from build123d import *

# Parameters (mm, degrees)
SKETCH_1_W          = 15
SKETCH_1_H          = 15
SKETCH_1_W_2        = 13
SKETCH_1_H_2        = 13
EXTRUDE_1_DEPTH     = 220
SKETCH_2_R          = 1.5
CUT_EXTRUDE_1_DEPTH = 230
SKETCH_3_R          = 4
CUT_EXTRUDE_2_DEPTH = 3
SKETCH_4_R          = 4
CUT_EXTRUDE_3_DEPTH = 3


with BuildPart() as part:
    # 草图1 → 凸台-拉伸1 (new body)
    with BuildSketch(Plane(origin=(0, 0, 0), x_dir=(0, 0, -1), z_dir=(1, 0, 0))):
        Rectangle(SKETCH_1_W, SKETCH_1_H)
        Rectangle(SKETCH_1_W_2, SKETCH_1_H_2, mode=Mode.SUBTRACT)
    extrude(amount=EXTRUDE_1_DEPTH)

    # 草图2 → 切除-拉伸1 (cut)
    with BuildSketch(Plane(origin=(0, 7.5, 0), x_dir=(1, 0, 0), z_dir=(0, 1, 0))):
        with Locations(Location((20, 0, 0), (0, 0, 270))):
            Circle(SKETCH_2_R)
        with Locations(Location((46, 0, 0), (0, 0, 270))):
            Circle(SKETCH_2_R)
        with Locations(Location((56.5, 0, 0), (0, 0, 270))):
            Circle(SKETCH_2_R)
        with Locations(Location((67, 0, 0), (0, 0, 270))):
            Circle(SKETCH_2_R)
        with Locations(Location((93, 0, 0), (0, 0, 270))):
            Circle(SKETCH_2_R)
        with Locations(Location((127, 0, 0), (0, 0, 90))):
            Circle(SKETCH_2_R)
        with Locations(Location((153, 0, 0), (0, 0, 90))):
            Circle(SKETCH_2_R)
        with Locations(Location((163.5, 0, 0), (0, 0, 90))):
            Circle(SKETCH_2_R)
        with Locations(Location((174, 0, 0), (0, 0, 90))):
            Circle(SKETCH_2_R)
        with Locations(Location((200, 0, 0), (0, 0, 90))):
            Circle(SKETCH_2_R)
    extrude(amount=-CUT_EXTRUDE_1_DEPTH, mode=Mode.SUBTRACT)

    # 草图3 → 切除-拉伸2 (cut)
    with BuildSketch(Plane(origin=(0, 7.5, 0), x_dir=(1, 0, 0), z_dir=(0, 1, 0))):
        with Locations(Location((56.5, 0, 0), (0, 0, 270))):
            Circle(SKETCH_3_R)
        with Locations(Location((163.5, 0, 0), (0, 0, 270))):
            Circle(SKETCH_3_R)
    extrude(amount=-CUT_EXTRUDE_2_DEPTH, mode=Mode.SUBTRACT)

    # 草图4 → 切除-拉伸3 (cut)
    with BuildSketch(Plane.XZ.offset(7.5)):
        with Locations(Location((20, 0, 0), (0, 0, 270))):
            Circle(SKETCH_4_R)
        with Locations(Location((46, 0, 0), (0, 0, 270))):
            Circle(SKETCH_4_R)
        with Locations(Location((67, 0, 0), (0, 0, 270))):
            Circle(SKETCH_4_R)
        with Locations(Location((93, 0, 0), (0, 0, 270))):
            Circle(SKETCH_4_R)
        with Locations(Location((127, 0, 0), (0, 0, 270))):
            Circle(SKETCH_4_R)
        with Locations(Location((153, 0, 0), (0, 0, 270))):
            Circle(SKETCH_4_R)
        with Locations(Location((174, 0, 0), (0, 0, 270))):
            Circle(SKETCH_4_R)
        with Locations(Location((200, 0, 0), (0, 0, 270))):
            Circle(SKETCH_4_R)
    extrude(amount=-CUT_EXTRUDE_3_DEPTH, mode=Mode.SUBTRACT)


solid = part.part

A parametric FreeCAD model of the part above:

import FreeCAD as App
import Part
import Sketcher

V = App.Vector


def add_polygon(sketch, points):
    """Adds a closed chain of lines whose ends are joined by coincident constraints."""
    first, n = sketch.GeometryCount, len(points)
    for a, b in zip(points, points[1:] + points[:1]):
        sketch.addGeometry(Part.LineSegment(App.Vector(*a, 0), App.Vector(*b, 0)), False)
    for i in range(n):
        sketch.addConstraint(Sketcher.Constraint("Coincident", first + i, 2, first + (i + 1) % n, 1))

doc = App.newDocument("Part")
params = doc.addObject("Spreadsheet::Sheet", "Params")
for row, (alias, value) in enumerate([
    ("sketch1_width", "15 mm"),
    ("sketch1_width2", "13 mm"),
    ("pad1_length", "220 mm"),
    ("sketch2_diameter", "3 mm"),
    ("pocket1_length", "230 mm"),
    ("sketch3_diameter", "8 mm"),
    ("pocket2_length", "3 mm"),
    ("sketch4_diameter", "8 mm"),
    ("pocket3_length", "3 mm"),
], start=1):
    params.set(f"A{row}", alias)
    params.set(f"B{row}", "=" + value)
    params.setAlias(f"B{row}", alias)

body = doc.addObject("PartDesign::Body", "Body")

# Sketch on YZ plane
sketch1 = doc.addObject("Sketcher::SketchObject", "Sketch")
body.addObject(sketch1)
sketch1.AttachmentSupport = (doc.YZ_Plane, [""])
sketch1.MapMode = "FlatFace"
add_polygon(sketch1, [(8, 8), (-8, 8), (-8, -8), (8, -8)])  # lines 0-3
add_polygon(sketch1, [(-6, -6), (-6, 6), (6, 6), (6, -6)])  # lines 4-7
sketch1.addConstraint(Sketcher.Constraint("Horizontal", 0))
sketch1.addConstraint(Sketcher.Constraint("Vertical", 1))
sketch1.addConstraint(Sketcher.Constraint("Horizontal", 2))
sketch1.addConstraint(Sketcher.Constraint("Vertical", 3))
sketch1.addConstraint(Sketcher.Constraint("Vertical", 4))
sketch1.addConstraint(Sketcher.Constraint("Horizontal", 5))
sketch1.addConstraint(Sketcher.Constraint("Vertical", 6))
sketch1.addConstraint(Sketcher.Constraint("Horizontal", 7))
sketch1.addConstraint(Sketcher.Constraint("Symmetric", 0, 2, 2, 2, -1, 1))
sketch1.addConstraint(Sketcher.Constraint("Symmetric", 4, 2, 6, 2, -1, 1))
sketch1.addConstraint(Sketcher.Constraint("Equal", 2, 1))
sketch1.addConstraint(Sketcher.Constraint("Equal", 7, 4))
sketch1.addConstraint(Sketcher.Constraint("DistanceX", 0, 2, 0, 1, 15.0))
sketch1.addConstraint(Sketcher.Constraint("DistanceX", 5, 1, 5, 2, 13.0))
sketch1.setExpression("Constraints[20]", "Params.sketch1_width")
sketch1.setExpression("Constraints[21]", "Params.sketch1_width2")
pad1 = doc.addObject("PartDesign::Pad", "Pad")
body.addObject(pad1)
pad1.Profile = sketch1
pad1.setExpression("Length", "Params.pad1_length")

# Sketch on XZ plane
sketch2 = doc.addObject("Sketcher::SketchObject", "Sketch001")
body.addObject(sketch2)
sketch2.AttachmentSupport = (doc.XZ_Plane, [""])
sketch2.MapMode = "FlatFace"
sketch2.AttachmentOffset = App.Placement(V(0, 0, -7.5), App.Rotation())
sketch2.addGeometry(Part.Circle(V(20, 0, 0), V(0, 0, 1), 1.5), False)
sketch2.addGeometry(Part.Circle(V(46, 0, 0), V(0, 0, 1), 1.5), False)
sketch2.addGeometry(Part.Circle(V(56.5, 0, 0), V(0, 0, 1), 1.5), False)
sketch2.addGeometry(Part.Circle(V(67, 0, 0), V(0, 0, 1), 1.5), False)
sketch2.addGeometry(Part.Circle(V(93, 0, 0), V(0, 0, 1), 1.5), False)
sketch2.addGeometry(Part.Circle(V(127, 0, 0), V(0, 0, 1), 1.5), False)
sketch2.addGeometry(Part.Circle(V(153, 0, 0), V(0, 0, 1), 1.5), False)
sketch2.addGeometry(Part.Circle(V(163.5, 0, 0), V(0, 0, 1), 1.5), False)
sketch2.addGeometry(Part.Circle(V(174, 0, 0), V(0, 0, 1), 1.5), False)
sketch2.addGeometry(Part.Circle(V(200, 0, 0), V(0, 0, 1), 1.5), False)
sketch2.addConstraint(Sketcher.Constraint("Equal", 0, 1))
sketch2.addConstraint(Sketcher.Constraint("Equal", 1, 2))
sketch2.addConstraint(Sketcher.Constraint("Equal", 2, 3))
sketch2.addConstraint(Sketcher.Constraint("Equal", 3, 4))
sketch2.addConstraint(Sketcher.Constraint("Equal", 4, 5))
sketch2.addConstraint(Sketcher.Constraint("Equal", 5, 6))
sketch2.addConstraint(Sketcher.Constraint("Equal", 6, 7))
sketch2.addConstraint(Sketcher.Constraint("Equal", 7, 8))
sketch2.addConstraint(Sketcher.Constraint("Equal", 8, 9))
sketch2.addConstraint(Sketcher.Constraint("PointOnObject", 0, 3, -1))
sketch2.addConstraint(Sketcher.Constraint("PointOnObject", 1, 3, -1))
sketch2.addConstraint(Sketcher.Constraint("PointOnObject", 2, 3, -1))
sketch2.addConstraint(Sketcher.Constraint("PointOnObject", 3, 3, -1))
sketch2.addConstraint(Sketcher.Constraint("PointOnObject", 4, 3, -1))
sketch2.addConstraint(Sketcher.Constraint("PointOnObject", 5, 3, -1))
sketch2.addConstraint(Sketcher.Constraint("PointOnObject", 6, 3, -1))
sketch2.addConstraint(Sketcher.Constraint("PointOnObject", 7, 3, -1))
sketch2.addConstraint(Sketcher.Constraint("PointOnObject", 8, 3, -1))
sketch2.addConstraint(Sketcher.Constraint("PointOnObject", 9, 3, -1))
sketch2.addConstraint(Sketcher.Constraint("Diameter", 0, 3.0))
sketch2.addConstraint(Sketcher.Constraint("DistanceX", -1, 1, 0, 3, 20.0))
sketch2.addConstraint(Sketcher.Constraint("DistanceX", -1, 1, 1, 3, 46.0))
sketch2.addConstraint(Sketcher.Constraint("DistanceX", -1, 1, 3, 3, 67.0))
sketch2.addConstraint(Sketcher.Constraint("DistanceX", -1, 1, 4, 3, 93.0))
sketch2.addConstraint(Sketcher.Constraint("DistanceX", -1, 1, 5, 3, 127.0))
sketch2.addConstraint(Sketcher.Constraint("DistanceX", -1, 1, 6, 3, 153.0))
sketch2.addConstraint(Sketcher.Constraint("DistanceX", -1, 1, 8, 3, 174.0))
sketch2.addConstraint(Sketcher.Constraint("DistanceX", -1, 1, 9, 3, 200.0))
sketch2.addConstraint(Sketcher.Constraint("DistanceX", 2, 3, 7, 3, 107.0))
sketch2.addConstraint(Sketcher.Constraint("DistanceX", -1, 1, 2, 3, 56.5))
sketch2.setExpression("Constraints[19]", "Params.sketch2_diameter")
pocket1 = doc.addObject("PartDesign::Pocket", "Pocket")
body.addObject(pocket1)
pocket1.Profile = sketch2
pocket1.setExpression("Length", "Params.pocket1_length")
pocket1.Reversed = True

# Sketch on XZ plane
sketch3 = doc.addObject("Sketcher::SketchObject", "Sketch002")
body.addObject(sketch3)
sketch3.AttachmentSupport = (doc.XZ_Plane, [""])
sketch3.MapMode = "FlatFace"
sketch3.AttachmentOffset = App.Placement(V(0, 0, -7.5), App.Rotation())
sketch3.addGeometry(Part.Circle(V(56.5, 0, 0), V(0, 0, 1), 4), False)
sketch3.addGeometry(Part.Circle(V(163.5, 0, 0), V(0, 0, 1), 4), False)
sketch3.addConstraint(Sketcher.Constraint("Equal", 0, 1))
sketch3.addConstraint(Sketcher.Constraint("PointOnObject", 0, 3, -1))
sketch3.addConstraint(Sketcher.Constraint("PointOnObject", 1, 3, -1))
sketch3.addConstraint(Sketcher.Constraint("Diameter", 0, 8.0))
sketch3.addConstraint(Sketcher.Constraint("DistanceX", 0, 3, 1, 3, 107.0))
sketch3.addConstraint(Sketcher.Constraint("DistanceX", -1, 1, 0, 3, 56.5))
sketch3.setExpression("Constraints[3]", "Params.sketch3_diameter")
pocket2 = doc.addObject("PartDesign::Pocket", "Pocket001")
body.addObject(pocket2)
pocket2.Profile = sketch3
pocket2.setExpression("Length", "Params.pocket2_length")
pocket2.Reversed = True

# Sketch on XZ plane
sketch4 = doc.addObject("Sketcher::SketchObject", "Sketch003")
body.addObject(sketch4)
sketch4.AttachmentSupport = (doc.XZ_Plane, [""])
sketch4.MapMode = "FlatFace"
sketch4.AttachmentOffset = App.Placement(V(0, 0, 7.5), App.Rotation())
sketch4.addGeometry(Part.Circle(V(20, 0, 0), V(0, 0, 1), 4), False)
sketch4.addGeometry(Part.Circle(V(46, 0, 0), V(0, 0, 1), 4), False)
sketch4.addGeometry(Part.Circle(V(67, 0, 0), V(0, 0, 1), 4), False)
sketch4.addGeometry(Part.Circle(V(93, 0, 0), V(0, 0, 1), 4), False)
sketch4.addGeometry(Part.Circle(V(127, 0, 0), V(0, 0, 1), 4), False)
sketch4.addGeometry(Part.Circle(V(153, 0, 0), V(0, 0, 1), 4), False)
sketch4.addGeometry(Part.Circle(V(174, 0, 0), V(0, 0, 1), 4), False)
sketch4.addGeometry(Part.Circle(V(200, 0, 0), V(0, 0, 1), 4), False)
sketch4.addConstraint(Sketcher.Constraint("Equal", 0, 1))
sketch4.addConstraint(Sketcher.Constraint("Equal", 1, 2))
sketch4.addConstraint(Sketcher.Constraint("Equal", 2, 3))
sketch4.addConstraint(Sketcher.Constraint("Equal", 3, 4))
sketch4.addConstraint(Sketcher.Constraint("Equal", 4, 5))
sketch4.addConstraint(Sketcher.Constraint("Equal", 5, 6))
sketch4.addConstraint(Sketcher.Constraint("Equal", 6, 7))
sketch4.addConstraint(Sketcher.Constraint("PointOnObject", 0, 3, -1))
sketch4.addConstraint(Sketcher.Constraint("PointOnObject", 1, 3, -1))
sketch4.addConstraint(Sketcher.Constraint("PointOnObject", 2, 3, -1))
sketch4.addConstraint(Sketcher.Constraint("PointOnObject", 3, 3, -1))
sketch4.addConstraint(Sketcher.Constraint("PointOnObject", 4, 3, -1))
sketch4.addConstraint(Sketcher.Constraint("PointOnObject", 5, 3, -1))
sketch4.addConstraint(Sketcher.Constraint("PointOnObject", 6, 3, -1))
sketch4.addConstraint(Sketcher.Constraint("PointOnObject", 7, 3, -1))
sketch4.addConstraint(Sketcher.Constraint("Diameter", 0, 8.0))
sketch4.addConstraint(Sketcher.Constraint("DistanceX", -1, 1, 0, 3, 20.0))
sketch4.addConstraint(Sketcher.Constraint("DistanceX", -1, 1, 1, 3, 46.0))
sketch4.addConstraint(Sketcher.Constraint("DistanceX", -1, 1, 2, 3, 67.0))
sketch4.addConstraint(Sketcher.Constraint("DistanceX", -1, 1, 3, 3, 93.0))
sketch4.addConstraint(Sketcher.Constraint("DistanceX", -1, 1, 4, 3, 127.0))
sketch4.addConstraint(Sketcher.Constraint("DistanceX", -1, 1, 5, 3, 153.0))
sketch4.addConstraint(Sketcher.Constraint("DistanceX", -1, 1, 6, 3, 174.0))
sketch4.addConstraint(Sketcher.Constraint("DistanceX", -1, 1, 7, 3, 200.0))
sketch4.setExpression("Constraints[15]", "Params.sketch4_diameter")
pocket3 = doc.addObject("PartDesign::Pocket", "Pocket002")
body.addObject(pocket3)
pocket3.Profile = sketch4
pocket3.setExpression("Length", "Params.pocket3_length")

doc.recompute()
